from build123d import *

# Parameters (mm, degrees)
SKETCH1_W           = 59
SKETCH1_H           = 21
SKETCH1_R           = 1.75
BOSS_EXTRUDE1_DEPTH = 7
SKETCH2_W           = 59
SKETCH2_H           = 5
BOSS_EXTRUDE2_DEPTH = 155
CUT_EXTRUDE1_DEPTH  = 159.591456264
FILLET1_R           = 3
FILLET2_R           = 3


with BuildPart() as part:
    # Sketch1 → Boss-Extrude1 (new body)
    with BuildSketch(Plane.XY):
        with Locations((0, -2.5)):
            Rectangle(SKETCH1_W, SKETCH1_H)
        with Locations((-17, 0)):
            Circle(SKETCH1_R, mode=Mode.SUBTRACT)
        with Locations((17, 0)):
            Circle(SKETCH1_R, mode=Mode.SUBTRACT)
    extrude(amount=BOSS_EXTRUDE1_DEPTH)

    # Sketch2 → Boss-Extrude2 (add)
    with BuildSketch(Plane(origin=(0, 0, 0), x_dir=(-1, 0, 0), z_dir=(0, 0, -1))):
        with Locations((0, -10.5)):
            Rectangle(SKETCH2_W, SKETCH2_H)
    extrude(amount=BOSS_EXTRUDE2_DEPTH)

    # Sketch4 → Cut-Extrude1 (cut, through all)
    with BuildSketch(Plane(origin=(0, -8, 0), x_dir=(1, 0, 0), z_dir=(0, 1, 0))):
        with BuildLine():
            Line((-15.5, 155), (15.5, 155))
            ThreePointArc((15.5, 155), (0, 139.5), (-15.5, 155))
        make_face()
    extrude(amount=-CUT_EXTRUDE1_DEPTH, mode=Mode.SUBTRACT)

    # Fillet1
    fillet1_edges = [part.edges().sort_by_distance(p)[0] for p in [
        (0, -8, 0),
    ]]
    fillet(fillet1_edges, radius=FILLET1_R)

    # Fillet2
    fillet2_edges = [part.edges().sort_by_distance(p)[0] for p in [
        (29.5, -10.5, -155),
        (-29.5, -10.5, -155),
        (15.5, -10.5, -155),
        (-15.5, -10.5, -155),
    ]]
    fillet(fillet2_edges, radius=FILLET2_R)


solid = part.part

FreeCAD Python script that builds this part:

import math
import FreeCAD as App
import Part
import Sketcher


def edges_at(feature, points):
    """Names of the edges that pass closest to the given points."""
    edges = feature.Shape.Edges
    near = lambda p: min(range(len(edges)), key=lambda i: edges[i].distToShape(Part.Vertex(*p))[0])
    return sorted({f"Edge{near(p) + 1}" for p in points})


def add_polygon(sketch, points):
    """Adds a closed chain of lines whose ends are joined by coincident constraints."""
    first, n = sketch.GeometryCount, len(points)
    for a, b in zip(points, points[1:] + points[:1]):
        sketch.addGeometry(Part.LineSegment(App.Vector(*a, 0), App.Vector(*b, 0)), False)
    for i in range(n):
        sketch.addConstraint(Sketcher.Constraint("Coincident", first + i, 2, first + (i + 1) % n, 1))

doc = App.newDocument("Part")
params = doc.addObject("Spreadsheet::Sheet", "Params")
for row, (alias, value) in enumerate([
    ("sketch1_diameter", "3.5 mm"),
    ("sketch1_width", "59 mm"),
    ("sketch1_height", "21 mm"),
    ("pad1_length", "7 mm"),
    ("sketch2_width", "59 mm"),
    ("sketch2_height", "5 mm"),
    ("pad2_length", "155 mm"),
    ("sketch3_radius", "15.5 mm"),
    ("fillet_radius", "3 mm"),
    ("fillet2_radius", "3 mm"),
], start=1):
    params.set(f"A{row}", alias)
    params.set(f"B{row}", "=" + value)
    params.setAlias(f"B{row}", alias)

body = doc.addObject("PartDesign::Body", "Body")

# Sketch on XY plane
sketch1 = body.newObject("Sketcher::SketchObject", "Sketch")
sketch1.AttachmentSupport = (doc.getObject("XY_Plane"), [""])
sketch1.MapMode = "FlatFace"
add_polygon(sketch1, [(-29.5, 8), (-29.5, -13), (29.5, -13), (29.5, 8)])  # lines 0-3
sketch1.addGeometry(Part.Circle(App.Vector(-17, 0, 0), App.Vector(0, 0, 1), 1.75), False)  # 4
sketch1.addGeometry(Part.Circle(App.Vector(17, 0, 0), App.Vector(0, 0, 1), 1.75), False)  # 5
sketch1.addConstraint([
    Sketcher.Constraint("Vertical", 0),
    Sketcher.Constraint("Horizontal", 1),
    Sketcher.Constraint("Vertical", 2),
    Sketcher.Constraint("Horizontal", 3),
    Sketcher.Constraint("Equal", 4, 5),
    Sketcher.Constraint("Symmetric", 4, 3, 5, 3, -1, 1),
    Sketcher.Constraint("PointOnObject", 4, 3, -1),
    Sketcher.Constraint("Diameter", 4, 3.5),
    Sketcher.Constraint("DistanceX", 1, 1, 1, 2, 59.0),
    Sketcher.Constraint("DistanceY", 0, 2, 0, 1, 21.0),
    Sketcher.Constraint("DistanceX", 4, 3, -1, 1, 17.0),
    Sketcher.Constraint("DistanceY", 0, 2, -1, 1, 13.0),
    Sketcher.Constraint("DistanceX", 0, 2, -1, 1, 29.5),
])
sketch1.setExpression("Constraints[11]", "Params.sketch1_diameter")
sketch1.setExpression("Constraints[12]", "Params.sketch1_width")
sketch1.setExpression("Constraints[13]", "Params.sketch1_height")
pad1 = body.newObject("PartDesign::Pad", "Pad")
pad1.Profile = sketch1
pad1.setExpression("Length", "Params.pad1_length")

# Sketch on XY plane
sketch2 = body.newObject("Sketcher::SketchObject", "Sketch001")
sketch2.AttachmentSupport = (doc.getObject("XY_Plane"), [""])
sketch2.MapMode = "FlatFace"
add_polygon(sketch2, [(29.5, -8), (29.5, -13), (-29.5, -13), (-29.5, -8)])  # lines 0-3
sketch2.addConstraint([
    Sketcher.Constraint("Vertical", 0),
    Sketcher.Constraint("Horizontal", 1),
    Sketcher.Constraint("Vertical", 2),
    Sketcher.Constraint("Horizontal", 3),
    Sketcher.Constraint("DistanceX", 1, 2, 1, 1, 59.0),
    Sketcher.Constraint("DistanceY", 0, 2, 0, 1, 5.0),
    Sketcher.Constraint("DistanceY", 0, 2, -1, 1, 13.0),
    Sketcher.Constraint("DistanceX", -1, 1, 0, 2, 29.5),
])
sketch2.setExpression("Constraints[8]", "Params.sketch2_width")
sketch2.setExpression("Constraints[9]", "Params.sketch2_height")
pad2 = body.newObject("PartDesign::Pad", "Pad001")
pad2.Profile = sketch2
pad2.setExpression("Length", "Params.pad2_length")
pad2.Reversed = True

# Sketch on XZ plane
sketch3 = body.newObject("Sketcher::SketchObject", "Sketch002")
sketch3.AttachmentSupport = (doc.getObject("XZ_Plane"), [""])
sketch3.MapMode = "FlatFace"
sketch3.AttachmentOffset = App.Placement(App.Vector(0, 0, 8), App.Rotation())
sketch3.addGeometry([
    Part.LineSegment(App.Vector(15.5, -155, 0), App.Vector(-15.5, -155, 0)),
    Part.ArcOfCircle(Part.Circle(App.Vector(0, -155, 0), App.Vector(0, 0, 1), 15.5), math.radians(0), math.radians(180)),
], False)
sketch3.addConstraint([
    Sketcher.Constraint("Coincident", 0, 1, 1, 1),
    Sketcher.Constraint("Coincident", 1, 2, 0, 2),
    Sketcher.Constraint("Horizontal", 0),
    Sketcher.Constraint("PointOnObject", 1, 3, -2),
    Sketcher.Constraint("Horizontal", 1, 3, 0, 1),
    Sketcher.Constraint("Radius", 1, 15.5),
    Sketcher.Constraint("DistanceY", 1, 3, -1, 1, 155.0),
])
sketch3.setExpression("Constraints[5]", "Params.sketch3_radius")
pocket1 = body.newObject("PartDesign::Pocket", "Pocket")
pocket1.Profile = sketch3
pocket1.Type = "ThroughAll"
pocket1.Reversed = True
doc.recompute()

fillet = body.newObject("PartDesign::Fillet", "Fillet")
fillet.Base = (pocket1, edges_at(pocket1, [(0, -8, 0)]))
fillet.setExpression("Radius", "Params.fillet_radius")
doc.recompute()

fillet2 = body.newObject("PartDesign::Fillet", "Fillet001")
fillet2.Base = (fillet, edges_at(fillet, [
    (29.5, -10.5, -155),
    (-29.5, -10.5, -155),
    (15.5, -10.5, -155),
    (-15.5, -10.5, -155),
]))
fillet2.setExpression("Radius", "Params.fillet2_radius")

doc.recompute()
